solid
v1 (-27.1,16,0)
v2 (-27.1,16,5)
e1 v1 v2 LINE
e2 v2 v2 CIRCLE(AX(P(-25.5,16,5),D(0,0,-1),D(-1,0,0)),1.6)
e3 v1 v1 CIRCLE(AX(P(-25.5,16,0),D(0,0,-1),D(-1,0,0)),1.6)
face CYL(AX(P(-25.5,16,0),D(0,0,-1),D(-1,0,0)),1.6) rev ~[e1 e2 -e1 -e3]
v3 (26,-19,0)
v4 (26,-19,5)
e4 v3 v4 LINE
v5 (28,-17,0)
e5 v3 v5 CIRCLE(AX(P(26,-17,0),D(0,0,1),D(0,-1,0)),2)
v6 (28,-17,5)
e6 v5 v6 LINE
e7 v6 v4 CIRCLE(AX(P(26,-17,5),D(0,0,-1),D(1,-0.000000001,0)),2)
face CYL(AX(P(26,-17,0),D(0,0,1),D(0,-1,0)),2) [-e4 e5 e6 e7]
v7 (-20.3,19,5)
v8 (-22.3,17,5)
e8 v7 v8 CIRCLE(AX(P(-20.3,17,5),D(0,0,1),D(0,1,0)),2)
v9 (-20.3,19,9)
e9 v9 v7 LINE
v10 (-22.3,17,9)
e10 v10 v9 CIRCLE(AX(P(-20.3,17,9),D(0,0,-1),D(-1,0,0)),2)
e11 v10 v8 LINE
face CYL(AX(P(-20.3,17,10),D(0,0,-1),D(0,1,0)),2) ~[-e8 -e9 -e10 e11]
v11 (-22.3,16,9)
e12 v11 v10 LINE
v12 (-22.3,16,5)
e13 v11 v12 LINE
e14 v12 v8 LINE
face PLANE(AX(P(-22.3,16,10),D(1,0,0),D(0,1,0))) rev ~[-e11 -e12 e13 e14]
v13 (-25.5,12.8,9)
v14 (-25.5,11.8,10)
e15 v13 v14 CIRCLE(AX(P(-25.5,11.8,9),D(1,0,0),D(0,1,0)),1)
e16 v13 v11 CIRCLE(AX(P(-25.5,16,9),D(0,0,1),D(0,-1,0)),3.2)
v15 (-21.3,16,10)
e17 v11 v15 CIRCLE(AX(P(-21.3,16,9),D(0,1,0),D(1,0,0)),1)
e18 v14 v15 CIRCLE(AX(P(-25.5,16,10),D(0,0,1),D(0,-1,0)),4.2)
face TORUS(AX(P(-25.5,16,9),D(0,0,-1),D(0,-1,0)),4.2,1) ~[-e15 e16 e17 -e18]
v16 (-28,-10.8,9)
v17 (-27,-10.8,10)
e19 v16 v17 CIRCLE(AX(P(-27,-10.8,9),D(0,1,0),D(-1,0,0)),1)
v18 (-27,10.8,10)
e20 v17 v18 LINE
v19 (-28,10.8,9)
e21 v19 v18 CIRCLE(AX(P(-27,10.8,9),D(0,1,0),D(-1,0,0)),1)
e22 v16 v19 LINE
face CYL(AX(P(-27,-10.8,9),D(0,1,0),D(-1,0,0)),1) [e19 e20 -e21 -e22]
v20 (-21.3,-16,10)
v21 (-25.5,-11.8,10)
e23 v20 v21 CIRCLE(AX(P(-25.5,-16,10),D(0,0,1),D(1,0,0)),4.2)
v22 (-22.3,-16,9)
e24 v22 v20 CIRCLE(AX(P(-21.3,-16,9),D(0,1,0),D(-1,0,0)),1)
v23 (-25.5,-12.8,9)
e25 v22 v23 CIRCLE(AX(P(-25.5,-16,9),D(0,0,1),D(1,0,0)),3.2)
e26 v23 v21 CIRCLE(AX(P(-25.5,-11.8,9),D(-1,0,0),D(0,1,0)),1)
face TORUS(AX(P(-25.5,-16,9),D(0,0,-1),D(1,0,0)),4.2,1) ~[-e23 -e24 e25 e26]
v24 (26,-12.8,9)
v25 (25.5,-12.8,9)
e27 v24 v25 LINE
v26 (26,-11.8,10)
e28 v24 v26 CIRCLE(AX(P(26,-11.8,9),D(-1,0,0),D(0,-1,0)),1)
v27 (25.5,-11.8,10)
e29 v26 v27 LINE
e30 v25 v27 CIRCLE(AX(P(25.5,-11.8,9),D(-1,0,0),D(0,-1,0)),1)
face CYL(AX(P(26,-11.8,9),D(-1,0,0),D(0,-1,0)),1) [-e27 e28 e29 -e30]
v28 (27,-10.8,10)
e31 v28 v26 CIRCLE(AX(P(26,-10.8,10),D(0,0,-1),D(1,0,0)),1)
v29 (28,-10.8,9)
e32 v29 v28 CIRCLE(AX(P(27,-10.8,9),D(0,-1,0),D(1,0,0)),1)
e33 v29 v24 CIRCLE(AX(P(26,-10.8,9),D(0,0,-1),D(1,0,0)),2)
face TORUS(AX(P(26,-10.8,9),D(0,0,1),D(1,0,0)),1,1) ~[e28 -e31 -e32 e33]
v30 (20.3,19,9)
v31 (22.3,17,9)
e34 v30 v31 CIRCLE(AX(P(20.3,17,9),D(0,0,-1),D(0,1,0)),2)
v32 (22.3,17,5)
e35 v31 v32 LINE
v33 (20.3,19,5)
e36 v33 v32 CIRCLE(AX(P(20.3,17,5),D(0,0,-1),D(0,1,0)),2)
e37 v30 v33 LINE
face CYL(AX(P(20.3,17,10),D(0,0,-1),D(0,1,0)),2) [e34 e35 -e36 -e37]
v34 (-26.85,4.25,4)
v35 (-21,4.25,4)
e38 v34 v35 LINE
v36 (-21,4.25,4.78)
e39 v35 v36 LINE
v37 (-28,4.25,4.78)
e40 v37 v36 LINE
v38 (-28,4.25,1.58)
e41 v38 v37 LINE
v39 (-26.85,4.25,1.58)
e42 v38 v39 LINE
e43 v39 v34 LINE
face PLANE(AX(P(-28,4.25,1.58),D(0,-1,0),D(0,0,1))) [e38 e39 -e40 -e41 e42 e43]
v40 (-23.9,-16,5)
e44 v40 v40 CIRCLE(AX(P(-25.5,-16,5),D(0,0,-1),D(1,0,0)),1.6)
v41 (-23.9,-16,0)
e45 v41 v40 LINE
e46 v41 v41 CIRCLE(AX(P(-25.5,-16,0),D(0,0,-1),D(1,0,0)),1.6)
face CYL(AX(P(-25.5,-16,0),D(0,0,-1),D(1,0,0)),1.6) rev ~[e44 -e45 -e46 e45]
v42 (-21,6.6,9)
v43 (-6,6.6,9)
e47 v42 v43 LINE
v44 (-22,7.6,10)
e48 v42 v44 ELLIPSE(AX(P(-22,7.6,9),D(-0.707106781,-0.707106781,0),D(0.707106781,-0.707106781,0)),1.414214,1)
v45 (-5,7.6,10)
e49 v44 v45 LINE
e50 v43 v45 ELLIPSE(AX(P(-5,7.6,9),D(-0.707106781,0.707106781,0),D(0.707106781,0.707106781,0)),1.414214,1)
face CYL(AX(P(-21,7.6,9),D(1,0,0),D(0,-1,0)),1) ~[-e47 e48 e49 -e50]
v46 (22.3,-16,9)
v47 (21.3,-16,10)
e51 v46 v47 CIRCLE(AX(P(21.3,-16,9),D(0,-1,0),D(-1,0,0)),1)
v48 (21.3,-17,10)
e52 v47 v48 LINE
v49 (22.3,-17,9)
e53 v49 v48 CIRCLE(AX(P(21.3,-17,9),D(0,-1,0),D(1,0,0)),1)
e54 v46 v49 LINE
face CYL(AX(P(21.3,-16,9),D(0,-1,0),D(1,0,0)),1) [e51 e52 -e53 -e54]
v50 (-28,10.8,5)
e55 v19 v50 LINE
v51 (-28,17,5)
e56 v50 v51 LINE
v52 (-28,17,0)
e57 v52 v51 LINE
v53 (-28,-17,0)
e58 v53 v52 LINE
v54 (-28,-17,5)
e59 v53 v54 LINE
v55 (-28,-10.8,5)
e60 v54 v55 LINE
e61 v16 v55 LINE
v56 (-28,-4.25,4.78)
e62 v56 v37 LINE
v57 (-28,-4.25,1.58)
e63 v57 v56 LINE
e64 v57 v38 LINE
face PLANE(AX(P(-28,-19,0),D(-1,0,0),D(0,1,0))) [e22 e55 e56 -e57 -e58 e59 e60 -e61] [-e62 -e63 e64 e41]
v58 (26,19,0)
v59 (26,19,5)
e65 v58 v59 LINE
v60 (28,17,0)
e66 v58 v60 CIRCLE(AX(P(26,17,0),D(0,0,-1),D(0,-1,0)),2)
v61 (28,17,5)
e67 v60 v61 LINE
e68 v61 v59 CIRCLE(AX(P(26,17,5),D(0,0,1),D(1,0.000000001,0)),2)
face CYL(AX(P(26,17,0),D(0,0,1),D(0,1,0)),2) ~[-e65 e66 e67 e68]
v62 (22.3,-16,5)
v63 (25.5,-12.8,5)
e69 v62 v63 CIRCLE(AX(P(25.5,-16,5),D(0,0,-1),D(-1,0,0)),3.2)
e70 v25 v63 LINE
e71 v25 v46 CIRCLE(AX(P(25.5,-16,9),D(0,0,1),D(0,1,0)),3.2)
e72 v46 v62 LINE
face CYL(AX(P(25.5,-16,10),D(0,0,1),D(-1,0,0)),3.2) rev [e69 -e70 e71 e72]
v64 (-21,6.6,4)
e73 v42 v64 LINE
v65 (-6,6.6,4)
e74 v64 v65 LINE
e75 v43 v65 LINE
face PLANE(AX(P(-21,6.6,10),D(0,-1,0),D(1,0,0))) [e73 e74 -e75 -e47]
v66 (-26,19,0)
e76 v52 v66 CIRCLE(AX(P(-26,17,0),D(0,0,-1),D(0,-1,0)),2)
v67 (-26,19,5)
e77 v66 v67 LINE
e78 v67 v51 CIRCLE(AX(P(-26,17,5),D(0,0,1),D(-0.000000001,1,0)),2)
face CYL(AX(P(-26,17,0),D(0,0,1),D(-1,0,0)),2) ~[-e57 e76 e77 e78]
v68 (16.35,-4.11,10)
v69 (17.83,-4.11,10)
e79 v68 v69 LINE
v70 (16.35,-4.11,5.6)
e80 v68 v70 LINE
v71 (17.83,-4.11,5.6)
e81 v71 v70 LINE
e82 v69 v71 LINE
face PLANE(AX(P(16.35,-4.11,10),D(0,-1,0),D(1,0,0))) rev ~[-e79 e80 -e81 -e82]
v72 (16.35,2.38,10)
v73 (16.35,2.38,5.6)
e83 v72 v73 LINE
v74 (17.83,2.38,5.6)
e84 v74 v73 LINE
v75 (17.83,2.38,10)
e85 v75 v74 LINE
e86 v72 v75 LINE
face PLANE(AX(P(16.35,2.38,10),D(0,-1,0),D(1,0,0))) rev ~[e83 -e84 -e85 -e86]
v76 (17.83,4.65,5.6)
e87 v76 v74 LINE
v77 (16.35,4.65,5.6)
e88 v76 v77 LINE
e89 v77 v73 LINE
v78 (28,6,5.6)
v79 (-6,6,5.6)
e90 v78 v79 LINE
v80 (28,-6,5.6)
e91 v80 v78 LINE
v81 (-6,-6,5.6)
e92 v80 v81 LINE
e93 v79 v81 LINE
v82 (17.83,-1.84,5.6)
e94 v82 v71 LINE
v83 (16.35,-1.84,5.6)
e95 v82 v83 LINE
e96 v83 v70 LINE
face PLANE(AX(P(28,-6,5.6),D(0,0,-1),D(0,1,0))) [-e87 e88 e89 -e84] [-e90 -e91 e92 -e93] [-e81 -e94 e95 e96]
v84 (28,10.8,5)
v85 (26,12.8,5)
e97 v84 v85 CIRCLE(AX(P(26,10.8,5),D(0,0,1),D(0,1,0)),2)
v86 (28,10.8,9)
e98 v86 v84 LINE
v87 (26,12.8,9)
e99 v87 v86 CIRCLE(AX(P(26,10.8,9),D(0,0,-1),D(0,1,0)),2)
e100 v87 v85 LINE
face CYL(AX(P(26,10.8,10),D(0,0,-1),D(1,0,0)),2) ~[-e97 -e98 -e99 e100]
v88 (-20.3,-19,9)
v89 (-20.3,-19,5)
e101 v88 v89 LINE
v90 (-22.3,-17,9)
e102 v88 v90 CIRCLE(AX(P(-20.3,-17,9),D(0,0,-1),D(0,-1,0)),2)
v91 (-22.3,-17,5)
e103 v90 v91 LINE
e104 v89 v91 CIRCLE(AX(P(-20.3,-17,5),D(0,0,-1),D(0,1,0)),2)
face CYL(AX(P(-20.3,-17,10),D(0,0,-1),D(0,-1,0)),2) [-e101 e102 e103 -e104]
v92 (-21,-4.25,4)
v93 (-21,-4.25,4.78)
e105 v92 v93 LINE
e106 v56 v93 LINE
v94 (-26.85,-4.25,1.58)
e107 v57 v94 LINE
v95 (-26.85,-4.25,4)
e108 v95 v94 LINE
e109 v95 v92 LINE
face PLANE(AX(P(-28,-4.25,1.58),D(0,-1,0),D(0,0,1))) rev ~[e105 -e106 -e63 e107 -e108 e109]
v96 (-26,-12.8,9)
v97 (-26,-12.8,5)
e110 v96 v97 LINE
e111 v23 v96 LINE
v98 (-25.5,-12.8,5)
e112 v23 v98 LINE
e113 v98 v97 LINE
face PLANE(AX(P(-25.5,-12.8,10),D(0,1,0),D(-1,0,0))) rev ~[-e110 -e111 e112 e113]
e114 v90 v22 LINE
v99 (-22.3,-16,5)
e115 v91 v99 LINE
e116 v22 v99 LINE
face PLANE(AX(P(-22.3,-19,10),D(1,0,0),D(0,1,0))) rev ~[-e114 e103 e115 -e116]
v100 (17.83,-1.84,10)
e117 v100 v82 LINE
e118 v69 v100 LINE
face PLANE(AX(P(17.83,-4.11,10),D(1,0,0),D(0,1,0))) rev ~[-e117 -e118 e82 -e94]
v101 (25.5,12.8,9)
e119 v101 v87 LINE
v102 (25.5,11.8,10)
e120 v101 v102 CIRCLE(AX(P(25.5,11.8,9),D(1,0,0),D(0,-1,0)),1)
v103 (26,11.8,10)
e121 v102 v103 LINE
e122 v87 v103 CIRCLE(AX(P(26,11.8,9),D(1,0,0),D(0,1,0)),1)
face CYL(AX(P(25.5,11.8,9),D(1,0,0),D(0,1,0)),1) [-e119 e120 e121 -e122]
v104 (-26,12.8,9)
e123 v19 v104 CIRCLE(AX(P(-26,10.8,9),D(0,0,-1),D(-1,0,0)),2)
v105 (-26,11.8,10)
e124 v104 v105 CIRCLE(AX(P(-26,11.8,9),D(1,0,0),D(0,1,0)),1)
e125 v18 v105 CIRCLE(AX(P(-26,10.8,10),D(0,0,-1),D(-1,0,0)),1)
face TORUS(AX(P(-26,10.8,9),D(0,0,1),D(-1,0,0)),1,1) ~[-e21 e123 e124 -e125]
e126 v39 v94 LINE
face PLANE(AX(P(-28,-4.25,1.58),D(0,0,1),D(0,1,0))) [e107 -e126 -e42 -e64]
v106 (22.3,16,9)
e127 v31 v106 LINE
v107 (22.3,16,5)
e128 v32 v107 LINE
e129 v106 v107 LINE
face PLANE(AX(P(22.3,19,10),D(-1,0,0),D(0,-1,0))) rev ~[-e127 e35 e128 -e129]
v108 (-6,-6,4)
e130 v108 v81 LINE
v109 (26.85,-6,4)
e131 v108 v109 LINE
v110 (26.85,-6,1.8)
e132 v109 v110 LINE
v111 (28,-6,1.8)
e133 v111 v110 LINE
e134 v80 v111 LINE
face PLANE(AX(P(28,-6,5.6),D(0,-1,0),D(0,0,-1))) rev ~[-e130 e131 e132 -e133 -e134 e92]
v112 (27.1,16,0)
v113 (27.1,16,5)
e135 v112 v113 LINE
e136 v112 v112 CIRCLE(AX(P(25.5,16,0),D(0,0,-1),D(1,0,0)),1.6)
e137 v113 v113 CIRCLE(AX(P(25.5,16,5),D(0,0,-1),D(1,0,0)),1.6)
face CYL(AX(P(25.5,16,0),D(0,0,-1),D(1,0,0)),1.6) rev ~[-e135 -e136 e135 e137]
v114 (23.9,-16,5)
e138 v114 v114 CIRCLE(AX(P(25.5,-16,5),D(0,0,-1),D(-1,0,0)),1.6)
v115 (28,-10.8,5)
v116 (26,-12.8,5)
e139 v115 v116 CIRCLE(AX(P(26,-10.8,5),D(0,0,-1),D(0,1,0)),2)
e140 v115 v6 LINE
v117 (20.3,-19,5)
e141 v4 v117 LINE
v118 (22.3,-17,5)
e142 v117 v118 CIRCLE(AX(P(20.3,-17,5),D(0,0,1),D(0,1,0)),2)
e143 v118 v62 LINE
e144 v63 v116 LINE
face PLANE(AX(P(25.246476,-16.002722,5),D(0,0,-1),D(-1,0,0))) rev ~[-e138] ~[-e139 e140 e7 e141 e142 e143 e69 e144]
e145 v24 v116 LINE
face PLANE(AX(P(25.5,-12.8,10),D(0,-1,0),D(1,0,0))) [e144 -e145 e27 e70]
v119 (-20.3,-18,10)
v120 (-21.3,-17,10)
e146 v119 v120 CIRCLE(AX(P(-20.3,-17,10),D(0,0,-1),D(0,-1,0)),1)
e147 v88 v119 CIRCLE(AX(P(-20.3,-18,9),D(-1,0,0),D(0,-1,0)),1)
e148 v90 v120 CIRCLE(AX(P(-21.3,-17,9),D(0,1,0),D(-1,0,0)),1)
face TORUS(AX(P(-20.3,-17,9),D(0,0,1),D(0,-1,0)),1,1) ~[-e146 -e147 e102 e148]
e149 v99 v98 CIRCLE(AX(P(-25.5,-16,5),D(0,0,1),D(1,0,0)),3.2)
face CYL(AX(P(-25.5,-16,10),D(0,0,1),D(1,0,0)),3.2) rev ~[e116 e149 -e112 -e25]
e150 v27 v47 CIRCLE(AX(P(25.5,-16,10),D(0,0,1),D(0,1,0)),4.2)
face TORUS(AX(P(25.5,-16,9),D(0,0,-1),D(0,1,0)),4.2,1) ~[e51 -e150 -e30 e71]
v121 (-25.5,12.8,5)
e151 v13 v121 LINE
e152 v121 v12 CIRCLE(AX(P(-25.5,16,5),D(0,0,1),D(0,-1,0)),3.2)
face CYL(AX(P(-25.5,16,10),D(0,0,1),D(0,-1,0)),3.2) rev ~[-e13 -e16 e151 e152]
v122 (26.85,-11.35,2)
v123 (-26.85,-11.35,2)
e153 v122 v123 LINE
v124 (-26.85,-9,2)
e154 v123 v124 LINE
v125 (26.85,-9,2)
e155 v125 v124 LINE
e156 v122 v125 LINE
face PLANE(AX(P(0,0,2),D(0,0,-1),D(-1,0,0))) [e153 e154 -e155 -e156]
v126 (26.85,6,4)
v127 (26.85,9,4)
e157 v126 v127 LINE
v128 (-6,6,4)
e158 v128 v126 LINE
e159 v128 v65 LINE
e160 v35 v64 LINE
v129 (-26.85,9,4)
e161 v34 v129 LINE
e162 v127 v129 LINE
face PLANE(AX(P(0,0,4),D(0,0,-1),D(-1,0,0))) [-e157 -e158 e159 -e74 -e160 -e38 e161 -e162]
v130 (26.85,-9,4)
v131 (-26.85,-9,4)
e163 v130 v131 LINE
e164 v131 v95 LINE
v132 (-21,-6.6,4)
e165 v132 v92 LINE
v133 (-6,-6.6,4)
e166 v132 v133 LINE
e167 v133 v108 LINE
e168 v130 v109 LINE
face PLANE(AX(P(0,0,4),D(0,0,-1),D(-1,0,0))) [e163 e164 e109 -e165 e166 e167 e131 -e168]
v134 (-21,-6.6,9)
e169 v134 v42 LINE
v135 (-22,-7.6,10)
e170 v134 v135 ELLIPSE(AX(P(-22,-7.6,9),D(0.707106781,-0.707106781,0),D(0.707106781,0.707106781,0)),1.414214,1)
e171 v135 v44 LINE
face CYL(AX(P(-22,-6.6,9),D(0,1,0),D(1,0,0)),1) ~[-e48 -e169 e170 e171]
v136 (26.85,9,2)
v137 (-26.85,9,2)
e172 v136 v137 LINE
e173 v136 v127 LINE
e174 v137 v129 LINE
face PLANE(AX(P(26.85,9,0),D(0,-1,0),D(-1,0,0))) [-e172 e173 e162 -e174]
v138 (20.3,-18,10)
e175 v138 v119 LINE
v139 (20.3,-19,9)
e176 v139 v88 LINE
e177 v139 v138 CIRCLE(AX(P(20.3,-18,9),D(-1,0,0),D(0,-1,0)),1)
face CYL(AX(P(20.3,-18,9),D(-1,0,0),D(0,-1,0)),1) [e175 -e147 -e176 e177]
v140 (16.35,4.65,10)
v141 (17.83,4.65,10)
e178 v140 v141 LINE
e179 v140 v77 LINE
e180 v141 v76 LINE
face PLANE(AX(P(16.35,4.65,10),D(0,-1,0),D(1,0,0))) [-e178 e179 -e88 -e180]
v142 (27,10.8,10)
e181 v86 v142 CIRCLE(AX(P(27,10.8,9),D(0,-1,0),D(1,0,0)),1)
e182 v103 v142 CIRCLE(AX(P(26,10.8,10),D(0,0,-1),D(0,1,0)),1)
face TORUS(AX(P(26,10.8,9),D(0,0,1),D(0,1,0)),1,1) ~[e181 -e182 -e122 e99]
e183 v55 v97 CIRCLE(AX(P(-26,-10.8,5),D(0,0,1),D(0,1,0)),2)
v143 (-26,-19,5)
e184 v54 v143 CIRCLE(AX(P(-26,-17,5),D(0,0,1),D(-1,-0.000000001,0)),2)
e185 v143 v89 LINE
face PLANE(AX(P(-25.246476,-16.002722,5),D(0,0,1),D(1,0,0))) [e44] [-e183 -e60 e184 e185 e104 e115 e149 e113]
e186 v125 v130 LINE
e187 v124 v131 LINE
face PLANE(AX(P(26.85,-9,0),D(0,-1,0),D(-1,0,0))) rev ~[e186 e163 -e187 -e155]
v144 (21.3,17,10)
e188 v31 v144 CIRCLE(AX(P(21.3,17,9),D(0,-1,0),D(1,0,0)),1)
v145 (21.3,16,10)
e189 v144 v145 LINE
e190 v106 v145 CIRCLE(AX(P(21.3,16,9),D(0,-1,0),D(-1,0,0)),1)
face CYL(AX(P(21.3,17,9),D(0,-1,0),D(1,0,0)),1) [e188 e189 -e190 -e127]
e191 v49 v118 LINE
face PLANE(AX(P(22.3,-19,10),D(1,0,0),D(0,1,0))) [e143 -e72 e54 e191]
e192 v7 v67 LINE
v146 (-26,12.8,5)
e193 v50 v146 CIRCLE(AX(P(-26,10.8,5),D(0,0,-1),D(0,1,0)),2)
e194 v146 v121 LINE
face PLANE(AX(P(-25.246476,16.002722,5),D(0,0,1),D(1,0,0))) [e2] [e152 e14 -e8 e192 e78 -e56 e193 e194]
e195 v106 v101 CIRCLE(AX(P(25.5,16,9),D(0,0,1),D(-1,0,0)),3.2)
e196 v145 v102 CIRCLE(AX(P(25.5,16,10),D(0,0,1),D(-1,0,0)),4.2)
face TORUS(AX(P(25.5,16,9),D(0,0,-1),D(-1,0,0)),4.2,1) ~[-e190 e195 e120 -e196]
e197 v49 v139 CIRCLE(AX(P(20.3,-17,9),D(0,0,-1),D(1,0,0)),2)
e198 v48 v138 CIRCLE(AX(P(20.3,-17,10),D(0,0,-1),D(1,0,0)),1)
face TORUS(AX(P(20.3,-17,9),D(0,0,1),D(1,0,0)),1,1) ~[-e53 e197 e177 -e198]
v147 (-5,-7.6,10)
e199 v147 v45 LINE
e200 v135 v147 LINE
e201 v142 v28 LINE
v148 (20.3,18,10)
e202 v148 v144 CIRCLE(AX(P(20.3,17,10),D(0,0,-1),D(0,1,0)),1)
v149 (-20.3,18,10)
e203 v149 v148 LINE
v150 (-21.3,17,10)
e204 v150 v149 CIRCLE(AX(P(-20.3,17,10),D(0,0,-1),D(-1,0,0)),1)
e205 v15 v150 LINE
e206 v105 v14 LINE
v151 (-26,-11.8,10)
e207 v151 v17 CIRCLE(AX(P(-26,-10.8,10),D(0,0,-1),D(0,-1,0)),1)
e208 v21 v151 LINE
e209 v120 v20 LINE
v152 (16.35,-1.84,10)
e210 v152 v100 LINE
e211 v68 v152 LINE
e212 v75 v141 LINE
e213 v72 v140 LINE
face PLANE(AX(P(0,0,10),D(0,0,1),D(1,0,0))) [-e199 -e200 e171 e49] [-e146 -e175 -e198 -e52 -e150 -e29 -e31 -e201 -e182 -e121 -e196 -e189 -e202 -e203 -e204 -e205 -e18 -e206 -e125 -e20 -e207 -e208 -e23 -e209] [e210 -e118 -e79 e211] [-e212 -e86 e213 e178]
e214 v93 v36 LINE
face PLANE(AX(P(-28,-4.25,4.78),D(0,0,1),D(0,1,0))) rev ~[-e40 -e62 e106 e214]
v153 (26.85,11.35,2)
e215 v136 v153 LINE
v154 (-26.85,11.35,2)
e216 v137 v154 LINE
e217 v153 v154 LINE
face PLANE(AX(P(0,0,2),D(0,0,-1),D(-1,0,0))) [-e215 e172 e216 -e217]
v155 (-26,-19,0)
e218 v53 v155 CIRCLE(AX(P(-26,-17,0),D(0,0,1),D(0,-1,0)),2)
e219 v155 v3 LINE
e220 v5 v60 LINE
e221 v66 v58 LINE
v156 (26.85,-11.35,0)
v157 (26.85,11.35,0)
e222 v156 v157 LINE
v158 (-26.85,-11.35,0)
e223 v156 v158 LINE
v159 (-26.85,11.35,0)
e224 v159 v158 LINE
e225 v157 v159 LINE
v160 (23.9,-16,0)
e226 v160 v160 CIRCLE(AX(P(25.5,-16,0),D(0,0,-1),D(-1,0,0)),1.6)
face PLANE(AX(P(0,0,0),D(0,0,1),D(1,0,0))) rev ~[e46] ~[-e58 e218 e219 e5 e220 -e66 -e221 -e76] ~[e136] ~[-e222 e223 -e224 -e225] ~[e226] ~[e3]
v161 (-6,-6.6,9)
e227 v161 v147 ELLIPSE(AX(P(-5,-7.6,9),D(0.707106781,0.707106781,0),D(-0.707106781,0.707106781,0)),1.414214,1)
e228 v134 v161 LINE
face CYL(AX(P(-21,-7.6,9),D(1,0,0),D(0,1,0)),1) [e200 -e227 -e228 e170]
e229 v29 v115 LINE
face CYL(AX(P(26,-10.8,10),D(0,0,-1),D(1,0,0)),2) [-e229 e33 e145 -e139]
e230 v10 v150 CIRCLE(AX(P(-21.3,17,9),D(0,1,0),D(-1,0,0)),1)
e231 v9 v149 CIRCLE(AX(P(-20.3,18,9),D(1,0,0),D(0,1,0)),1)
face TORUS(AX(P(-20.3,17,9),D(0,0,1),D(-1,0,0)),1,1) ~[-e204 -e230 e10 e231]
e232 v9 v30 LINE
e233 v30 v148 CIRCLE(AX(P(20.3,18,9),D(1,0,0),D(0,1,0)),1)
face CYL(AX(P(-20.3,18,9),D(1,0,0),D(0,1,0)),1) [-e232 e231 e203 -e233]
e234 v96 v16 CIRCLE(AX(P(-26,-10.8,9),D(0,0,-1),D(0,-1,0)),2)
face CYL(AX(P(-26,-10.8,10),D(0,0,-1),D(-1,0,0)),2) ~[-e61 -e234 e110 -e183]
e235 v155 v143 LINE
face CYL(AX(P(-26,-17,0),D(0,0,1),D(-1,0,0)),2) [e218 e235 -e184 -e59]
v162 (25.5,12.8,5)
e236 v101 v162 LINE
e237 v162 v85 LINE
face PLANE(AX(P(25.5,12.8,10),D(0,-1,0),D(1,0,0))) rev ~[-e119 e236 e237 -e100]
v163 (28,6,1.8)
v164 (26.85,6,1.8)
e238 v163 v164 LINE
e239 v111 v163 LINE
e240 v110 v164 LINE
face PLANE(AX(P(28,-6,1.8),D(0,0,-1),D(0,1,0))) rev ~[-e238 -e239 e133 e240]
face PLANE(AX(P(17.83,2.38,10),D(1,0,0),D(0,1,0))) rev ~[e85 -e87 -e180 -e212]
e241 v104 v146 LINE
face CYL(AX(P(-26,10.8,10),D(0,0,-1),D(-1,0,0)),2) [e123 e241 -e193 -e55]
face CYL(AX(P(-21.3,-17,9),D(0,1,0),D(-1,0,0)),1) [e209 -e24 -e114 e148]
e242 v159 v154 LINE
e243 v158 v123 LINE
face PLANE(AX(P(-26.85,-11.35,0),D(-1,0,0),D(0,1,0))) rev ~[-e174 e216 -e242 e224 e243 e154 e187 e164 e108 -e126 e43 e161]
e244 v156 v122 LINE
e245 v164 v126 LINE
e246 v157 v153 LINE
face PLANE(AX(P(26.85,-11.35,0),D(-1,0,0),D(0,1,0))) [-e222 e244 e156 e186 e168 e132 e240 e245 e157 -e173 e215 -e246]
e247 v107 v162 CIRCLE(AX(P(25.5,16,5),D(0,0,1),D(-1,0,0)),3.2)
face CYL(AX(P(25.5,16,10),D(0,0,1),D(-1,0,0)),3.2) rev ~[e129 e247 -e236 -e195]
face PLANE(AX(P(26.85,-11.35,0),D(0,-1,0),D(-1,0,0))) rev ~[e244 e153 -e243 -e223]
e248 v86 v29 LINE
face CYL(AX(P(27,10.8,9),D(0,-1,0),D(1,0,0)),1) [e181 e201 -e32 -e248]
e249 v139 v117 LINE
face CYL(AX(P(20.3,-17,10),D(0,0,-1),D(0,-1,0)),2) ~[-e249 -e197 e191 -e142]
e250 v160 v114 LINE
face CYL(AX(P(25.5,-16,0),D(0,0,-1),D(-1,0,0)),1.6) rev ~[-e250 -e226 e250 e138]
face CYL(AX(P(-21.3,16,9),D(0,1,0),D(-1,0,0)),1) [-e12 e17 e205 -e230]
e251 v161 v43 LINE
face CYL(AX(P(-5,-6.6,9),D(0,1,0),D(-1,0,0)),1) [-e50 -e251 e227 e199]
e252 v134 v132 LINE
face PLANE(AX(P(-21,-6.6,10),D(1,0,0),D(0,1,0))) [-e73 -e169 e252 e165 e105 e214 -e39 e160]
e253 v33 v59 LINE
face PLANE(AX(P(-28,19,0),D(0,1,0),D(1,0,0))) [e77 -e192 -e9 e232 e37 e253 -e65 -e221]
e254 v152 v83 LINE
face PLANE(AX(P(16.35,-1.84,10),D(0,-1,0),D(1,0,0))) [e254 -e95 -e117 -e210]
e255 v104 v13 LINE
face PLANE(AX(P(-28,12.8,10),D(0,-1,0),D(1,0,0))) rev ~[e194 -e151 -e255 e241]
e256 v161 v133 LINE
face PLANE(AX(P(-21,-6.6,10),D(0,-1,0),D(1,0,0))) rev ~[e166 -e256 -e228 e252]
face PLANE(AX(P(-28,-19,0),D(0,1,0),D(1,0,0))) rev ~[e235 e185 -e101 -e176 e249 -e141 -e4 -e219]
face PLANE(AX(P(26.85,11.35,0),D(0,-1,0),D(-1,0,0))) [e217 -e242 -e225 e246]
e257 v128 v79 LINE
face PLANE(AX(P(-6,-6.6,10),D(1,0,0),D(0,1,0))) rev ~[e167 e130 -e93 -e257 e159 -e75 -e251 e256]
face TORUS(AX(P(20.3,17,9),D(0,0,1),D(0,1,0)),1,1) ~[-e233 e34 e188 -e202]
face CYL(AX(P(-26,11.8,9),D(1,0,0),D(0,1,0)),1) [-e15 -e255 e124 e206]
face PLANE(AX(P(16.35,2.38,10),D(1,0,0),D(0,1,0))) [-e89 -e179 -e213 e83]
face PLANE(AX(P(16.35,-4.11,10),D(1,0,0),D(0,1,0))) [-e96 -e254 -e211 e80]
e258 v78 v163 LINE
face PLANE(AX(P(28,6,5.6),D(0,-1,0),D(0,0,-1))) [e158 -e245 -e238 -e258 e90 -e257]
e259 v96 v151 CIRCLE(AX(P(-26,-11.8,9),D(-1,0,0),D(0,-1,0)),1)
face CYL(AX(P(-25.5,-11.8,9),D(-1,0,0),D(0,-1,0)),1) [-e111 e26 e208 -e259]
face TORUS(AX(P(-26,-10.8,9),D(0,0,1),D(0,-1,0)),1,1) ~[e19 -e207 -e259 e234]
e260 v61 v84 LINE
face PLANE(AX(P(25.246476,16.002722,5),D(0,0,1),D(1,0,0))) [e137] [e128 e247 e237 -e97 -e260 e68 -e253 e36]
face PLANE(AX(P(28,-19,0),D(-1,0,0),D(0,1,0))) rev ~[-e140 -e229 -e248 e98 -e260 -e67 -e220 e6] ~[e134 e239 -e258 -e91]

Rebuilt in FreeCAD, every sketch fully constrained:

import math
import FreeCAD as App
import Part
import Sketcher
Q = App.Units.Quantity


def edges_at(feature, points):
    """Names of the edges that pass closest to the given points."""
    edges = feature.Shape.Edges
    near = lambda p: min(range(len(edges)), key=lambda i: edges[i].distToShape(Part.Vertex(*p))[0])
    return sorted({f"Edge{near(p) + 1}" for p in points})

doc = App.newDocument("Part")
body = doc.addObject("PartDesign::Body", "Body")

# Sketch on XY plane
sketch1 = doc.addObject("Sketcher::SketchObject", "Sketch")
body.addObject(sketch1)
sketch1.AttachmentSupport = (doc.XY_Plane, [""])
sketch1.MapMode = "FlatFace"
sketch1.addGeometry(Part.LineSegment(App.Vector(-28, 19, 0), App.Vector(-28, -19, 0)), False)
sketch1.addGeometry(Part.LineSegment(App.Vector(-28, -19, 0), App.Vector(28, -19, 0)), False)
sketch1.addGeometry(Part.LineSegment(App.Vector(28, -19, 0), App.Vector(28, 19, 0)), False)
sketch1.addGeometry(Part.LineSegment(App.Vector(28, 19, 0), App.Vector(-28, 19, 0)), False)
sketch1.addConstraint(Sketcher.Constraint("Coincident", 0, 2, 1, 1))
sketch1.addConstraint(Sketcher.Constraint("Coincident", 1, 2, 2, 1))
sketch1.addConstraint(Sketcher.Constraint("Coincident", 2, 2, 3, 1))
sketch1.addConstraint(Sketcher.Constraint("Coincident", 3, 2, 0, 1))
sketch1.addConstraint(Sketcher.Constraint("Vertical", 0))
sketch1.addConstraint(Sketcher.Constraint("Horizontal", 1))
sketch1.addConstraint(Sketcher.Constraint("Vertical", 2))
sketch1.addConstraint(Sketcher.Constraint("Horizontal", 3))
sketch1.addConstraint(Sketcher.Constraint("Symmetric", 0, 2, 2, 2, -1, 1))
sketch1.addConstraint(Sketcher.Constraint("DistanceX", 1, 1, 1, 2, Q("56 mm")))
sketch1.addConstraint(Sketcher.Constraint("DistanceY", 0, 2, 0, 1, Q("38 mm")))
pad1 = doc.addObject("PartDesign::Pad", "Pad")
body.addObject(pad1)
pad1.Profile = sketch1
pad1.Length = 10

# Sketch on XY plane
sketch2 = doc.addObject("Sketcher::SketchObject", "Sketch001")
body.addObject(sketch2)
sketch2.AttachmentSupport = (doc.XY_Plane, [""])
sketch2.MapMode = "FlatFace"
sketch2.AttachmentOffset = App.Placement(App.Vector(0, 0, 10), App.Rotation())
sketch2.addGeometry(Part.LineSegment(App.Vector(-21, 6.6, 0), App.Vector(-21, -6.6, 0)), False)
sketch2.addGeometry(Part.LineSegment(App.Vector(-21, -6.6, 0), App.Vector(-6, -6.6, 0)), False)
sketch2.addGeometry(Part.LineSegment(App.Vector(-6, -6.6, 0), App.Vector(-6, 6.6, 0)), False)
sketch2.addGeometry(Part.LineSegment(App.Vector(-6, 6.6, 0), App.Vector(-21, 6.6, 0)), False)
sketch2.addGeometry(Part.LineSegment(App.Vector(16.4, 4.7, 0), App.Vector(16.4, 2.4, 0)), False)
sketch2.addGeometry(Part.LineSegment(App.Vector(16.4, 2.4, 0), App.Vector(17.8, 2.4, 0)), False)
sketch2.addGeometry(Part.LineSegment(App.Vector(17.8, 2.4, 0), App.Vector(17.8, 4.7, 0)), False)
sketch2.addGeometry(Part.LineSegment(App.Vector(17.8, 4.7, 0), App.Vector(16.4, 4.7, 0)), False)
sketch2.addGeometry(Part.LineSegment(App.Vector(16.4, -1.8, 0), App.Vector(16.4, -4.1, 0)), False)
sketch2.addGeometry(Part.LineSegment(App.Vector(16.4, -4.1, 0), App.Vector(17.8, -4.1, 0)), False)
sketch2.addGeometry(Part.LineSegment(App.Vector(17.8, -4.1, 0), App.Vector(17.8, -1.8, 0)), False)
sketch2.addGeometry(Part.LineSegment(App.Vector(17.8, -1.8, 0), App.Vector(16.4, -1.8, 0)), False)
sketch2.addConstraint(Sketcher.Constraint("Coincident", 0, 2, 1, 1))
sketch2.addConstraint(Sketcher.Constraint("Coincident", 1, 2, 2, 1))
sketch2.addConstraint(Sketcher.Constraint("Coincident", 2, 2, 3, 1))
sketch2.addConstraint(Sketcher.Constraint("Coincident", 3, 2, 0, 1))
sketch2.addConstraint(Sketcher.Constraint("Coincident", 4, 2, 5, 1))
sketch2.addConstraint(Sketcher.Constraint("Coincident", 5, 2, 6, 1))
sketch2.addConstraint(Sketcher.Constraint("Coincident", 6, 2, 7, 1))
sketch2.addConstraint(Sketcher.Constraint("Coincident", 7, 2, 4, 1))
sketch2.addConstraint(Sketcher.Constraint("Coincident", 8, 2, 9, 1))
sketch2.addConstraint(Sketcher.Constraint("Coincident", 9, 2, 10, 1))
sketch2.addConstraint(Sketcher.Constraint("Coincident", 10, 2, 11, 1))
sketch2.addConstraint(Sketcher.Constraint("Coincident", 11, 2, 8, 1))
sketch2.addConstraint(Sketcher.Constraint("Vertical", 0))
sketch2.addConstraint(Sketcher.Constraint("Horizontal", 1))
sketch2.addConstraint(Sketcher.Constraint("Vertical", 2))
sketch2.addConstraint(Sketcher.Constraint("Horizontal", 3))
sketch2.addConstraint(Sketcher.Constraint("Vertical", 4))
sketch2.addConstraint(Sketcher.Constraint("Horizontal", 5))
sketch2.addConstraint(Sketcher.Constraint("Vertical", 6))
sketch2.addConstraint(Sketcher.Constraint("Horizontal", 7))
sketch2.addConstraint(Sketcher.Constraint("Vertical", 8))
sketch2.addConstraint(Sketcher.Constraint("Horizontal", 9))
sketch2.addConstraint(Sketcher.Constraint("Vertical", 10))
sketch2.addConstraint(Sketcher.Constraint("Horizontal", 11))
sketch2.addConstraint(Sketcher.Constraint("Vertical", 7, 2, 8, 2))
sketch2.addConstraint(Sketcher.Constraint("Vertical", 6, 2, 9, 2))
sketch2.addConstraint(Sketcher.Constraint("Equal", 6, 8))
sketch2.addConstraint(Sketcher.Constraint("DistanceX", 1, 1, 1, 2, Q("15 mm")))
sketch2.addConstraint(Sketcher.Constraint("DistanceY", 0, 2, 0, 1, Q("13.2 mm")))
sketch2.addConstraint(Sketcher.Constraint("DistanceX", 0, 2, -1, 1, Q("21 mm")))
sketch2.addConstraint(Sketcher.Constraint("DistanceX", 5, 1, 5, 2, Q("1.48 mm")))
sketch2.addConstraint(Sketcher.Constraint("DistanceY", 4, 2, 4, 1, Q("2.27 mm")))
sketch2.addConstraint(Sketcher.Constraint("DistanceY", 0, 2, -1, 1, Q("6.6 mm")))
sketch2.addConstraint(Sketcher.Constraint("DistanceX", -1, 1, 4, 2, Q("16.35 mm")))
sketch2.addConstraint(Sketcher.Constraint("DistanceY", -1, 1, 4, 2, Q("2.38 mm")))
sketch2.addConstraint(Sketcher.Constraint("DistanceY", 8, 2, -1, 1, Q("4.11 mm")))
pocket1 = doc.addObject("PartDesign::Pocket", "Pocket")
body.addObject(pocket1)
pocket1.Profile = sketch2
pocket1.Length = 8

# Sketch on XY plane
sketch3 = doc.addObject("Sketcher::SketchObject", "Sketch002")
body.addObject(sketch3)
sketch3.AttachmentSupport = (doc.XY_Plane, [""])
sketch3.MapMode = "FlatFace"
sketch3.addGeometry(Part.LineSegment(App.Vector(27, 11, 0), App.Vector(27, -11, 0)), False)
sketch3.addGeometry(Part.LineSegment(App.Vector(27, -11, 0), App.Vector(-27, -11, 0)), False)
sketch3.addGeometry(Part.LineSegment(App.Vector(-27, -11, 0), App.Vector(-27, 11, 0)), False)
sketch3.addGeometry(Part.LineSegment(App.Vector(-27, 11, 0), App.Vector(27, 11, 0)), False)
sketch3.addConstraint(Sketcher.Constraint("Coincident", 0, 2, 1, 1))
sketch3.addConstraint(Sketcher.Constraint("Coincident", 1, 2, 2, 1))
sketch3.addConstraint(Sketcher.Constraint("Coincident", 2, 2, 3, 1))
sketch3.addConstraint(Sketcher.Constraint("Coincident", 3, 2, 0, 1))
sketch3.addConstraint(Sketcher.Constraint("Vertical", 0))
sketch3.addConstraint(Sketcher.Constraint("Horizontal", 1))
sketch3.addConstraint(Sketcher.Constraint("Vertical", 2))
sketch3.addConstraint(Sketcher.Constraint("Horizontal", 3))
sketch3.addConstraint(Sketcher.Constraint("Symmetric", 0, 2, 2, 2, -1, 1))
sketch3.addConstraint(Sketcher.Constraint("DistanceX", 1, 2, 1, 1, Q("53.7 mm")))
sketch3.addConstraint(Sketcher.Constraint("DistanceY", 0, 2, 0, 1, Q("22.7 mm")))
pocket2 = doc.addObject("PartDesign::Pocket", "Pocket001")
body.addObject(pocket2)
pocket2.Profile = sketch3
pocket2.Length = 2
pocket2.Reversed = True

# Sketch on YZ plane
sketch4 = doc.addObject("Sketcher::SketchObject", "Sketch003")
body.addObject(sketch4)
sketch4.AttachmentSupport = (doc.YZ_Plane, [""])
sketch4.MapMode = "FlatFace"
sketch4.AttachmentOffset = App.Placement(App.Vector(0, 0, -28), App.Rotation())
sketch4.addGeometry(Part.LineSegment(App.Vector(4.2, 1.6, 0), App.Vector(-4.2, 1.6, 0)), False)
sketch4.addGeometry(Part.LineSegment(App.Vector(-4.2, 1.6, 0), App.Vector(-4.2, 4.8, 0)), False)
sketch4.addGeometry(Part.LineSegment(App.Vector(-4.2, 4.8, 0), App.Vector(4.2, 4.8, 0)), False)
sketch4.addGeometry(Part.LineSegment(App.Vector(4.2, 4.8, 0), App.Vector(4.2, 1.6, 0)), False)
sketch4.addConstraint(Sketcher.Constraint("Coincident", 0, 2, 1, 1))
sketch4.addConstraint(Sketcher.Constraint("Coincident", 1, 2, 2, 1))
sketch4.addConstraint(Sketcher.Constraint("Coincident", 2, 2, 3, 1))
sketch4.addConstraint(Sketcher.Constraint("Coincident", 3, 2, 0, 1))
sketch4.addConstraint(Sketcher.Constraint("Horizontal", 0))
sketch4.addConstraint(Sketcher.Constraint("Vertical", 1))
sketch4.addConstraint(Sketcher.Constraint("Horizontal", 2))
sketch4.addConstraint(Sketcher.Constraint("Vertical", 3))
sketch4.addConstraint(Sketcher.Constraint("DistanceX", 0, 2, 0, 1, Q("8.5 mm")))
sketch4.addConstraint(Sketcher.Constraint("DistanceY", 1, 1, 1, 2, Q("3.2 mm")))
sketch4.addConstraint(Sketcher.Constraint("DistanceX", 0, 2, -1, 1, Q("4.25 mm")))
sketch4.addConstraint(Sketcher.Constraint("DistanceY", -1, 1, 0, 2, Q("1.58 mm")))
pocket3 = doc.addObject("PartDesign::Pocket", "Pocket002")
body.addObject(pocket3)
pocket3.Profile = sketch4
pocket3.Type = "UpToFirst"
pocket3.Reversed = True

# Sketch on YZ plane
sketch5 = doc.addObject("Sketcher::SketchObject", "Sketch004")
body.addObject(sketch5)
sketch5.AttachmentSupport = (doc.YZ_Plane, [""])
sketch5.MapMode = "FlatFace"
sketch5.AttachmentOffset = App.Placement(App.Vector(0, 0, 28), App.Rotation())
sketch5.addGeometry(Part.LineSegment(App.Vector(6, 5.6, 0), App.Vector(-6, 5.6, 0)), False)
sketch5.addGeometry(Part.LineSegment(App.Vector(-6, 5.6, 0), App.Vector(-6, 1.8, 0)), False)
sketch5.addGeometry(Part.LineSegment(App.Vector(-6, 1.8, 0), App.Vector(6, 1.8, 0)), False)
sketch5.addGeometry(Part.LineSegment(App.Vector(6, 1.8, 0), App.Vector(6, 5.6, 0)), False)
sketch5.addConstraint(Sketcher.Constraint("Coincident", 0, 2, 1, 1))
sketch5.addConstraint(Sketcher.Constraint("Coincident", 1, 2, 2, 1))
sketch5.addConstraint(Sketcher.Constraint("Coincident", 2, 2, 3, 1))
sketch5.addConstraint(Sketcher.Constraint("Coincident", 3, 2, 0, 1))
sketch5.addConstraint(Sketcher.Constraint("Horizontal", 0))
sketch5.addConstraint(Sketcher.Constraint("Vertical", 1))
sketch5.addConstraint(Sketcher.Constraint("Horizontal", 2))
sketch5.addConstraint(Sketcher.Constraint("Vertical", 3))
sketch5.addConstraint(Sketcher.Constraint("DistanceX", 0, 2, 0, 1, Q("12 mm")))
sketch5.addConstraint(Sketcher.Constraint("DistanceY", 1, 2, 1, 1, Q("3.8 mm")))
sketch5.addConstraint(Sketcher.Constraint("DistanceX", 0, 2, -1, 1, Q("6 mm")))
sketch5.addConstraint(Sketcher.Constraint("DistanceY", -1, 1, 0, 2, Q("5.6 mm")))
pocket4 = doc.addObject("PartDesign::Pocket", "Pocket003")
body.addObject(pocket4)
pocket4.Profile = sketch5
pocket4.Type = "UpToFirst"

# Sketch on XY plane
sketch6 = doc.addObject("Sketcher::SketchObject", "Sketch005")
body.addObject(sketch6)
sketch6.AttachmentSupport = (doc.XY_Plane, [""])
sketch6.MapMode = "FlatFace"
sketch6.addGeometry(Part.Circle(App.Vector(-25.5, 16, 0), App.Vector(0, 0, 1), 1.6), False)
sketch6.addGeometry(Part.Circle(App.Vector(-25.5, -16, 0), App.Vector(0, 0, 1), 1.6), False)
sketch6.addGeometry(Part.Circle(App.Vector(25.5, -16, 0), App.Vector(0, 0, 1), 1.6), False)
sketch6.addGeometry(Part.Circle(App.Vector(25.5, 16, 0), App.Vector(0, 0, 1), 1.6), False)
sketch6.addConstraint(Sketcher.Constraint("Equal", 0, 1))
sketch6.addConstraint(Sketcher.Constraint("Equal", 1, 2))
sketch6.addConstraint(Sketcher.Constraint("Equal", 2, 3))
sketch6.addConstraint(Sketcher.Constraint("Symmetric", 0, 3, 2, 3, -1, 1))
sketch6.addConstraint(Sketcher.Constraint("Symmetric", 1, 3, 3, 3, -1, 1))
sketch6.addConstraint(Sketcher.Constraint("Symmetric", 1, 3, 2, 3, -2))
sketch6.addConstraint(Sketcher.Constraint("Diameter", 0, Q("3.2 mm")))
sketch6.addConstraint(Sketcher.Constraint("DistanceY", -1, 1, 0, 3, Q("16 mm")))
sketch6.addConstraint(Sketcher.Constraint("DistanceX", 1, 3, 2, 3, Q("51 mm")))
pocket5 = doc.addObject("PartDesign::Pocket", "Pocket004")
body.addObject(pocket5)
pocket5.Profile = sketch6
pocket5.Type = "ThroughAll"
pocket5.Reversed = True
doc.recompute()

fillet = doc.addObject("PartDesign::Fillet", "Fillet")
body.addObject(fillet)
fillet.Base = (pocket5, edges_at(pocket5, [
    (28, -19, 5),
    (-28, -19, 5),
    (-28, 19, 5),
    (28, 19, 5),
]))
fillet.Radius = 2

# Sketch on XY plane
sketch7 = doc.addObject("Sketcher::SketchObject", "Sketch006")
body.addObject(sketch7)
sketch7.AttachmentSupport = (doc.XY_Plane, [""])
sketch7.MapMode = "FlatFace"
sketch7.AttachmentOffset = App.Placement(App.Vector(0, 0, 10), App.Rotation())
sketch7.addGeometry(Part.LineSegment(App.Vector(-22.3, 16, 0), App.Vector(-22.3, 19, 0)), False)
sketch7.addGeometry(Part.LineSegment(App.Vector(-22.3, 19, 0), App.Vector(-26, 19, 0)), False)
sketch7.addGeometry(Part.ArcOfCircle(Part.Circle(App.Vector(-26, 17, 0), App.Vector(0, 0, 1), 2), math.radians(90), math.radians(180)), False)
sketch7.addGeometry(Part.LineSegment(App.Vector(-28, 17, 0), App.Vector(-28, 12.8, 0)), False)
sketch7.addGeometry(Part.LineSegment(App.Vector(-28, 12.8, 0), App.Vector(-25.5, 12.8, 0)), False)
sketch7.addGeometry(Part.ArcOfCircle(Part.Circle(App.Vector(-25.5, 16, 0), App.Vector(0, 0, 1), 3.2), math.radians(-90), math.radians(0)), False)
sketch7.addGeometry(Part.LineSegment(App.Vector(28, 12.8, 0), App.Vector(28, 17, 0)), False)
sketch7.addGeometry(Part.ArcOfCircle(Part.Circle(App.Vector(26, 17, 0), App.Vector(0, 0, 1), 2), math.radians(0), math.radians(90)), False)
sketch7.addGeometry(Part.LineSegment(App.Vector(26, 19, 0), App.Vector(22.3, 19, 0)), False)
sketch7.addGeometry(Part.LineSegment(App.Vector(22.3, 19, 0), App.Vector(22.3, 16, 0)), False)
sketch7.addGeometry(Part.ArcOfCircle(Part.Circle(App.Vector(25.5, 16, 0), App.Vector(0, 0, 1), 3.2), math.radians(180), math.radians(270)), False)
sketch7.addGeometry(Part.LineSegment(App.Vector(25.5, 12.8, 0), App.Vector(28, 12.8, 0)), False)
sketch7.addGeometry(Part.LineSegment(App.Vector(-28, -12.8, 0), App.Vector(-28, -17, 0)), False)
sketch7.addGeometry(Part.ArcOfCircle(Part.Circle(App.Vector(-26, -17, 0), App.Vector(0, 0, 1), 2), math.radians(-180), math.radians(-90)), False)
sketch7.addGeometry(Part.LineSegment(App.Vector(-26, -19, 0), App.Vector(-22.3, -19, 0)), False)
sketch7.addGeometry(Part.LineSegment(App.Vector(-22.3, -19, 0), App.Vector(-22.3, -16, 0)), False)
sketch7.addGeometry(Part.ArcOfCircle(Part.Circle(App.Vector(-25.5, -16, 0), App.Vector(0, 0, 1), 3.2), math.radians(0), math.radians(90)), False)
sketch7.addGeometry(Part.LineSegment(App.Vector(-25.5, -12.8, 0), App.Vector(-28, -12.8, 0)), False)
sketch7.addGeometry(Part.LineSegment(App.Vector(22.3, -19, 0), App.Vector(26, -19, 0)), False)
sketch7.addGeometry(Part.ArcOfCircle(Part.Circle(App.Vector(26, -17, 0), App.Vector(0, 0, 1), 2), math.radians(-90), math.radians(0)), False)
sketch7.addGeometry(Part.LineSegment(App.Vector(28, -17, 0), App.Vector(28, -12.8, 0)), False)
sketch7.addGeometry(Part.LineSegment(App.Vector(28, -12.8, 0), App.Vector(25.5, -12.8, 0)), False)
sketch7.addGeometry(Part.ArcOfCircle(Part.Circle(App.Vector(25.5, -16, 0), App.Vector(0, 0, 1), 3.2), math.radians(90), math.radians(180)), False)
sketch7.addGeometry(Part.LineSegment(App.Vector(22.3, -16, 0), App.Vector(22.3, -19, 0)), False)
sketch7.addConstraint(Sketcher.Constraint("Coincident", 0, 2, 1, 1))
sketch7.addConstraint(Sketcher.Constraint("Tangent", 1, 2, 2, 1))
sketch7.addConstraint(Sketcher.Constraint("Tangent", 2, 2, 3, 1))
sketch7.addConstraint(Sketcher.Constraint("Coincident", 3, 2, 4, 1))
sketch7.addConstraint(Sketcher.Constraint("Tangent", 4, 2, 5, 1))
sketch7.addConstraint(Sketcher.Constraint("Tangent", 5, 2, 0, 1))
sketch7.addConstraint(Sketcher.Constraint("Tangent", 6, 2, 7, 1))
sketch7.addConstraint(Sketcher.Constraint("Tangent", 7, 2, 8, 1))
sketch7.addConstraint(Sketcher.Constraint("Coincident", 8, 2, 9, 1))
sketch7.addConstraint(Sketcher.Constraint("Tangent", 9, 2, 10, 1))
sketch7.addConstraint(Sketcher.Constraint("Tangent", 10, 2, 11, 1))
sketch7.addConstraint(Sketcher.Constraint("Coincident", 11, 2, 6, 1))
sketch7.addConstraint(Sketcher.Constraint("Tangent", 12, 2, 13, 1))
sketch7.addConstraint(Sketcher.Constraint("Tangent", 13, 2, 14, 1))
sketch7.addConstraint(Sketcher.Constraint("Coincident", 14, 2, 15, 1))
sketch7.addConstraint(Sketcher.Constraint("Tangent", 15, 2, 16, 1))
sketch7.addConstraint(Sketcher.Constraint("Tangent", 16, 2, 17, 1))
sketch7.addConstraint(Sketcher.Constraint("Coincident", 17, 2, 12, 1))
sketch7.addConstraint(Sketcher.Constraint("Tangent", 18, 2, 19, 1))
sketch7.addConstraint(Sketcher.Constraint("Tangent", 19, 2, 20, 1))
sketch7.addConstraint(Sketcher.Constraint("Coincident", 20, 2, 21, 1))
sketch7.addConstraint(Sketcher.Constraint("Tangent", 21, 2, 22, 1))
sketch7.addConstraint(Sketcher.Constraint("Tangent", 22, 2, 23, 1))
sketch7.addConstraint(Sketcher.Constraint("Coincident", 23, 2, 18, 1))
sketch7.addConstraint(Sketcher.Constraint("Vertical", 0))
sketch7.addConstraint(Sketcher.Constraint("Horizontal", 1))
sketch7.addConstraint(Sketcher.Constraint("Vertical", 3))
sketch7.addConstraint(Sketcher.Constraint("Horizontal", 4))
sketch7.addConstraint(Sketcher.Constraint("Vertical", 6))
sketch7.addConstraint(Sketcher.Constraint("Horizontal", 8))
sketch7.addConstraint(Sketcher.Constraint("Vertical", 9))
sketch7.addConstraint(Sketcher.Constraint("Horizontal", 11))
sketch7.addConstraint(Sketcher.Constraint("Vertical", 12))
sketch7.addConstraint(Sketcher.Constraint("Horizontal", 14))
sketch7.addConstraint(Sketcher.Constraint("Vertical", 15))
sketch7.addConstraint(Sketcher.Constraint("Horizontal", 17))
sketch7.addConstraint(Sketcher.Constraint("Horizontal", 18))
sketch7.addConstraint(Sketcher.Constraint("Vertical", 20))
sketch7.addConstraint(Sketcher.Constraint("Horizontal", 21))
sketch7.addConstraint(Sketcher.Constraint("Vertical", 23))
sketch7.addConstraint(Sketcher.Constraint("Equal", 2, 7))
sketch7.addConstraint(Sketcher.Constraint("Equal", 5, 10))
sketch7.addConstraint(Sketcher.Constraint("Equal", 7, 13))
sketch7.addConstraint(Sketcher.Constraint("Equal", 10, 16))
sketch7.addConstraint(Sketcher.Constraint("Equal", 13, 19))
sketch7.addConstraint(Sketcher.Constraint("Equal", 16, 22))
sketch7.addConstraint(Sketcher.Constraint("Symmetric", 7, 3, 13, 3, -1, 1))
sketch7.addConstraint(Sketcher.Constraint("Symmetric", 10, 3, 16, 3, -1, 1))
sketch7.addConstraint(Sketcher.Constraint("Symmetric", 2, 3, 19, 3, -1, 1))
sketch7.addConstraint(Sketcher.Constraint("Symmetric", 5, 3, 22, 3, -1, 1))
sketch7.addConstraint(Sketcher.Constraint("Symmetric", 2, 3, 7, 3, -2))
sketch7.addConstraint(Sketcher.Constraint("Symmetric", 5, 3, 10, 3, -2))
sketch7.addConstraint(Sketcher.Constraint("Radius", 2, Q("2 mm")))
sketch7.addConstraint(Sketcher.Constraint("Radius", 5, Q("3.2 mm")))
sketch7.addConstraint(Sketcher.Constraint("DistanceY", 0, 1, 0, 2, Q("3 mm")))
sketch7.addConstraint(Sketcher.Constraint("DistanceX", 1, 2, 1, 1, Q("3.7 mm")))
sketch7.addConstraint(Sketcher.Constraint("DistanceX", 2, 3, -1, 1, Q("26 mm")))
sketch7.addConstraint(Sketcher.Constraint("DistanceY", -1, 1, 2, 3, Q("17 mm")))
pocket6 = doc.addObject("PartDesign::Pocket", "Pocket005")
body.addObject(pocket6)
pocket6.Profile = sketch7
pocket6.Length = 5
doc.recompute()

fillet2 = doc.addObject("PartDesign::Fillet", "Fillet001")
body.addObject(fillet2)
fillet2.Base = (pocket6, edges_at(pocket6, [
    (28, 12.8, 7.5),
    (22.3, 19, 7.5),
    (-28, -12.8, 7.5),
    (-22.3, -19, 7.5),
    (22.3, -19, 7.5),
    (28, -12.8, 7.5),
    (-28, 12.8, 7.5),
    (-22.3, 19, 7.5),
]))
fillet2.Radius = 2
doc.recompute()

fillet3 = doc.addObject("PartDesign::Fillet", "Fillet002")
body.addObject(fillet3)
fillet3.Base = (fillet2, edges_at(fillet2, [
    (23.237, 13.737, 10),
    (25.75, 12.8, 10),
    (-23.237, -13.737, 10),
    (-25.75, -12.8, 10),
    (-6, 0, 10),
    (23.237, -13.737, 10),
    (-13.5, 6.6, 10),
    (22.3, -16.5, 10),
    (-21, 0, 10),
    (-13.5, -6.6, 10),
    (-23.237, 13.737, 10),
    (-22.3, 16.5, 10),
    (0, -19, 10),
    (28, 0, 10),
    (22.3, 16.5, 10),
    (0, 19, 10),
    (-25.75, 12.8, 10),
    (-28, 0, 10),
    (-22.3, -16.5, 10),
    (25.75, -12.8, 10),
    (-27.414, -12.214, 10),
    (-21.714, -18.414, 10),
    (-27.414, 12.214, 10),
    (-21.714, 18.414, 10),
    (27.414, 12.214, 10),
    (21.714, 18.414, 10),
    (27.414, -12.214, 10),
    (21.714, -18.414, 10),
]))
fillet3.Radius = 1

# Sketch on XY plane
sketch8 = doc.addObject("Sketcher::SketchObject", "Sketch007")
body.addObject(sketch8)
sketch8.AttachmentSupport = (doc.XY_Plane, [""])
sketch8.MapMode = "FlatFace"
sketch8.addGeometry(Part.LineSegment(App.Vector(27, 9, 0), App.Vector(27, -9, 0)), False)
sketch8.addGeometry(Part.LineSegment(App.Vector(27, -9, 0), App.Vector(-27, -9, 0)), False)
sketch8.addGeometry(Part.LineSegment(App.Vector(-27, -9, 0), App.Vector(-27, 9, 0)), False)
sketch8.addGeometry(Part.LineSegment(App.Vector(-27, 9, 0), App.Vector(27, 9, 0)), False)
sketch8.addConstraint(Sketcher.Constraint("Coincident", 0, 2, 1, 1))
sketch8.addConstraint(Sketcher.Constraint("Coincident", 1, 2, 2, 1))
sketch8.addConstraint(Sketcher.Constraint("Coincident", 2, 2, 3, 1))
sketch8.addConstraint(Sketcher.Constraint("Coincident", 3, 2, 0, 1))
sketch8.addConstraint(Sketcher.Constraint("Vertical", 0))
sketch8.addConstraint(Sketcher.Constraint("Horizontal", 1))
sketch8.addConstraint(Sketcher.Constraint("Vertical", 2))
sketch8.addConstraint(Sketcher.Constraint("Horizontal", 3))
sketch8.addConstraint(Sketcher.Constraint("Symmetric", 0, 2, 2, 2, -1, 1))
sketch8.addConstraint(Sketcher.Constraint("DistanceY", 0, 2, 0, 1, Q("18 mm")))
sketch8.addConstraint(Sketcher.Constraint("DistanceX", 1, 2, 1, 1, Q("53.7 mm")))
pocket7 = doc.addObject("PartDesign::Pocket", "Pocket006")
body.addObject(pocket7)
pocket7.Profile = sketch8
pocket7.Length = 4
pocket7.Reversed = True

doc.recompute()
